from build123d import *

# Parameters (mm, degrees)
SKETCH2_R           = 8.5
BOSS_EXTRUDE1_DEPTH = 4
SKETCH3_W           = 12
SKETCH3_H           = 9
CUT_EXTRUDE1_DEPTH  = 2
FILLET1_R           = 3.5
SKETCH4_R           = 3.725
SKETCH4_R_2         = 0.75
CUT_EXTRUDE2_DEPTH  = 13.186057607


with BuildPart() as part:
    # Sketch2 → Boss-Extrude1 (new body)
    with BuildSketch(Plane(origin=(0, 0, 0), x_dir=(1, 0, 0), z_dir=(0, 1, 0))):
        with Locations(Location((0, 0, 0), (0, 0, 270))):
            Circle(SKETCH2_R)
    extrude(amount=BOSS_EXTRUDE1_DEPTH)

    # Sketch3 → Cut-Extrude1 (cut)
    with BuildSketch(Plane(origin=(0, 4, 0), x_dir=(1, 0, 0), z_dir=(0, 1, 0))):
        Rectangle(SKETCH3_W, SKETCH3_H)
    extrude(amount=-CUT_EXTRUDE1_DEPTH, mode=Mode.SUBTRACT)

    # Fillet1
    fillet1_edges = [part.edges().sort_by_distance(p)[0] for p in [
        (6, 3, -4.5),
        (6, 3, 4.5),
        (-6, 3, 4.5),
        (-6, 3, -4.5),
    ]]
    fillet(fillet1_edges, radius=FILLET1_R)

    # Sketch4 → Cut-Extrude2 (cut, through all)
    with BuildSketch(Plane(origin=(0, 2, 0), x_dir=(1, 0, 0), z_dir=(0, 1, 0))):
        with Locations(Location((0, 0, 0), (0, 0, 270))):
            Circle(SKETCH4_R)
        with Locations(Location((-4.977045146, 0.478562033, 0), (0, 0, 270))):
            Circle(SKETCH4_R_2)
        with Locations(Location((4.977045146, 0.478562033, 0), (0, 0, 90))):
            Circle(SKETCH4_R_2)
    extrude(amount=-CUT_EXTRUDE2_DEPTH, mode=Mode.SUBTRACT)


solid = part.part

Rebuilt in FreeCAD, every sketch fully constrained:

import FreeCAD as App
import Part
import Sketcher

V = App.Vector


def edges_at(feature, points):
    """Names of the edges that pass closest to the given points."""
    edges = feature.Shape.Edges
    near = lambda p: min(range(len(edges)), key=lambda i: edges[i].distToShape(Part.Vertex(*p))[0])
    return sorted({f"Edge{near(p) + 1}" for p in points})


def add_polygon(sketch, points):
    """Adds a closed chain of lines whose ends are joined by coincident constraints."""
    first, n = sketch.GeometryCount, len(points)
    for a, b in zip(points, points[1:] + points[:1]):
        sketch.addGeometry(Part.LineSegment(App.Vector(*a, 0), App.Vector(*b, 0)), False)
    for i in range(n):
        sketch.addConstraint(Sketcher.Constraint("Coincident", first + i, 2, first + (i + 1) % n, 1))

doc = App.newDocument("Part")
body = doc.addObject("PartDesign::Body", "Body")

sketch1 = body.newObject("Sketcher::SketchObject", "Sketch")
sketch1.AttachmentSupport = (doc.getObject("XZ_Plane"), [""])
sketch1.MapMode = "FlatFace"
sketch1.addGeometry(Part.Circle(V(0, 0, 0), V(0, 0, 1), 8), False)
sketch1.addConstraint(Sketcher.Constraint("Coincident", 0, 3, -1, 1))
sketch1.addConstraint(Sketcher.Constraint("Diameter", 0, 17.0))
pad1 = body.newObject("PartDesign::Pad", "Pad")
pad1.Profile = sketch1
pad1.Length = 4
pad1.Reversed = True

sketch2 = body.newObject("Sketcher::SketchObject", "Sketch001")
sketch2.AttachmentSupport = (doc.getObject("XZ_Plane"), [""])
sketch2.MapMode = "FlatFace"
sketch2.AttachmentOffset = App.Placement(V(0, 0, -4), App.Rotation())
add_polygon(sketch2, [(-6, -4), (-6, 4), (6, 4), (6, -4)])
sketch2.addConstraint(Sketcher.Constraint("Vertical", 0))
sketch2.addConstraint(Sketcher.Constraint("Horizontal", 1))
sketch2.addConstraint(Sketcher.Constraint("Vertical", 2))
sketch2.addConstraint(Sketcher.Constraint("Horizontal", 3))
sketch2.addConstraint(Sketcher.Constraint("Symmetric", 0, 2, 2, 2, -1, 1))
sketch2.addConstraint(Sketcher.Constraint("DistanceX", 1, 1, 1, 2, 12.0))
sketch2.addConstraint(Sketcher.Constraint("DistanceY", 0, 1, 0, 2, 9.0))
pocket1 = body.newObject("PartDesign::Pocket", "Pocket")
pocket1.Profile = sketch2
pocket1.Length = 2
pocket1.Reversed = True
doc.recompute()

fillet = body.newObject("PartDesign::Fillet", "Fillet")
fillet.Base = (pocket1, edges_at(pocket1, [
    (6, 3, -4.5),
    (6, 3, 4.5),
    (-6, 3, 4.5),
    (-6, 3, -4.5),
]))
fillet.Radius = 3.5

sketch3 = body.newObject("Sketcher::SketchObject", "Sketch002")
sketch3.AttachmentSupport = (doc.getObject("XZ_Plane"), [""])
sketch3.MapMode = "FlatFace"
sketch3.AttachmentOffset = App.Placement(V(0, 0, -2), App.Rotation())
sketch3.addGeometry(Part.Circle(V(0, 0, 0), V(0, 0, 1), 3.7), False)
sketch3.addGeometry(Part.Circle(V(-5, -0.5, 0), V(0, 0, 1), 0.8), False)
sketch3.addGeometry(Part.Circle(V(5, -0.5, 0), V(0, 0, 1), 0.8), False)
sketch3.addConstraint(Sketcher.Constraint("Coincident", 0, 3, -1, 1))
sketch3.addConstraint(Sketcher.Constraint("Equal", 1, 2))
sketch3.addConstraint(Sketcher.Constraint("Symmetric", 1, 3, 2, 3, -2))
sketch3.addConstraint(Sketcher.Constraint("Diameter", 1, 1.5))
sketch3.addConstraint(Sketcher.Constraint("Diameter", 0, 7.45))
sketch3.addConstraint(Sketcher.Constraint("DistanceX", 1, 3, 2, 3, 9.95409))
sketch3.addConstraint(Sketcher.Constraint("DistanceY", 1, 3, -1, 1, 0.478562))
pocket2 = body.newObject("PartDesign::Pocket", "Pocket001")
pocket2.Profile = sketch3
pocket2.Type = "ThroughAll"
pocket2.Reversed = True

doc.recompute()
